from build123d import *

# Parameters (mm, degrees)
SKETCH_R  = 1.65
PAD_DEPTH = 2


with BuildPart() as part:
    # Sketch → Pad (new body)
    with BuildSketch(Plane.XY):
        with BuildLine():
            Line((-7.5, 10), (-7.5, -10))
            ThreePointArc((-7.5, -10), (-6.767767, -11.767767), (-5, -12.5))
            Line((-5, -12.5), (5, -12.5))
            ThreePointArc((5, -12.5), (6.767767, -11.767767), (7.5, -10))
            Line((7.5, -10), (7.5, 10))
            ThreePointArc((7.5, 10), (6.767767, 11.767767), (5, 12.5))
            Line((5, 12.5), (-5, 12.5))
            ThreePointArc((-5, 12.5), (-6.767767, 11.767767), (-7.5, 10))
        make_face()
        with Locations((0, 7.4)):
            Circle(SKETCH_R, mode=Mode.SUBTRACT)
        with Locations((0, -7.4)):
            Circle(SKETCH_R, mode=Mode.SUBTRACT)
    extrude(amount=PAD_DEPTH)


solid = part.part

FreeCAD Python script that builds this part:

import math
import FreeCAD as App
import Part
import Sketcher
from FreeCAD import Vector
Q = App.Units.Quantity

doc = App.newDocument("Part")
body = doc.addObject("PartDesign::Body", "Body")

# Sketch on XY plane
sketch1 = body.newObject("Sketcher::SketchObject", "Sketch")
sketch1.AttachmentSupport = (doc.getObject("XY_Plane"), [""])
sketch1.MapMode = "FlatFace"
sketch1.addGeometry([
    Part.LineSegment(Vector(-7.5, 10, 0), Vector(-7.5, -10, 0)),  # 0
    Part.ArcOfCircle(Part.Circle(Vector(-5, -10, 0), Vector(0, 0, 1), 2.5), math.radians(180), math.radians(270)),  # 1
    Part.LineSegment(Vector(-5, -12.5, 0), Vector(5, -12.5, 0)),  # 2
    Part.ArcOfCircle(Part.Circle(Vector(5, -10, 0), Vector(0, 0, 1), 2.5), math.radians(-90), math.radians(0)),  # 3
    Part.LineSegment(Vector(7.5, -10, 0), Vector(7.5, 10, 0)),  # 4
    Part.ArcOfCircle(Part.Circle(Vector(5, 10, 0), Vector(0, 0, 1), 2.5), math.radians(0), math.radians(90)),  # 5
    Part.LineSegment(Vector(5, 12.5, 0), Vector(-5, 12.5, 0)),  # 6
    Part.ArcOfCircle(Part.Circle(Vector(-5, 10, 0), Vector(0, 0, 1), 2.5), math.radians(90), math.radians(180)),  # 7
    Part.Circle(Vector(0, -7.4, 0), Vector(0, 0, 1), 1.6),  # 8
    Part.Circle(Vector(0, 7.4, 0), Vector(0, 0, 1), 1.6),  # 9
], False)
sketch1.addConstraint([
    Sketcher.Constraint("Tangent", 0, 2, 1, 1),
    Sketcher.Constraint("Tangent", 1, 2, 2, 1),
    Sketcher.Constraint("Tangent", 2, 2, 3, 1),
    Sketcher.Constraint("Tangent", 3, 2, 4, 1),
    Sketcher.Constraint("Tangent", 4, 2, 5, 1),
    Sketcher.Constraint("Tangent", 5, 2, 6, 1),
    Sketcher.Constraint("Tangent", 6, 2, 7, 1),
    Sketcher.Constraint("Tangent", 7, 2, 0, 1),
    Sketcher.Constraint("Vertical", 0),
    Sketcher.Constraint("Horizontal", 2),
    Sketcher.Constraint("Vertical", 4),
    Sketcher.Constraint("Horizontal", 6),
    Sketcher.Constraint("Equal", 1, 3),
    Sketcher.Constraint("Equal", 3, 5),
    Sketcher.Constraint("Equal", 5, 7),
    Sketcher.Constraint("Equal", 8, 9),
    Sketcher.Constraint("Symmetric", 1, 3, 5, 3, -1, 1),
    Sketcher.Constraint("Symmetric", 8, 3, 9, 3, -1, 1),
    Sketcher.Constraint("PointOnObject", 8, 3, -2),
    Sketcher.Constraint("Diameter", 8, Q("3.3 mm")),
    Sketcher.Constraint("Radius", 1, Q("2.5 mm")),
    Sketcher.Constraint("DistanceX", 2, 1, 2, 2, Q("10 mm")),
    Sketcher.Constraint("DistanceY", 0, 2, 0, 1, Q("20 mm")),
    Sketcher.Constraint("DistanceY", 8, 3, -1, 1, Q("7.4 mm")),
])
pad1 = body.newObject("PartDesign::Pad", "Pad")
pad1.Profile = sketch1
pad1.Length = 2

doc.recompute()
